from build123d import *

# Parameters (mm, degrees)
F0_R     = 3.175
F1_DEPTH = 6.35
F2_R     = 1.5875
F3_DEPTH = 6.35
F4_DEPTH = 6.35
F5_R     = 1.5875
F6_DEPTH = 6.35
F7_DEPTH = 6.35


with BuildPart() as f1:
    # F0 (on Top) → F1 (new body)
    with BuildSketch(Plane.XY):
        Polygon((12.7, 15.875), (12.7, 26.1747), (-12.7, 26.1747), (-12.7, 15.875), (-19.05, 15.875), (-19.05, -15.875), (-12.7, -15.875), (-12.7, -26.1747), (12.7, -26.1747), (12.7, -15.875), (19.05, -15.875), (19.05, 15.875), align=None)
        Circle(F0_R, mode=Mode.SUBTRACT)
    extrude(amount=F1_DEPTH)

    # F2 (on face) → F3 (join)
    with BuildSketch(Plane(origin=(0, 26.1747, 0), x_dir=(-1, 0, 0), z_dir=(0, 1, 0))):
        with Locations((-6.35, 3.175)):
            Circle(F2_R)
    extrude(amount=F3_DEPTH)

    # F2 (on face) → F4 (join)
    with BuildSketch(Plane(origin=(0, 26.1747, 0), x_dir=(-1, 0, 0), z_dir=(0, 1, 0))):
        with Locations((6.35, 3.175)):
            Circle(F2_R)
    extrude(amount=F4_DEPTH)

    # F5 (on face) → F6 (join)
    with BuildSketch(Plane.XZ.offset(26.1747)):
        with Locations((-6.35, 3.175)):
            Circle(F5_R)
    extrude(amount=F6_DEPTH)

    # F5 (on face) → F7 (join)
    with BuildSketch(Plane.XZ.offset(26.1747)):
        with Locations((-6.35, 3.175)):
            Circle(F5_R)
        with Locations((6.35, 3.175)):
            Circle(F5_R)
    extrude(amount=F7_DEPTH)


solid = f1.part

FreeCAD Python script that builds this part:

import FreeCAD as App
import Part
import Sketcher

V = App.Vector
Q = App.Units.Quantity

doc = App.newDocument("Part")
body = doc.addObject("PartDesign::Body", "Body")

# Sketch on XY plane
sketch1 = doc.addObject("Sketcher::SketchObject", "Sketch")
body.addObject(sketch1)
sketch1.AttachmentSupport = (doc.XY_Plane, [""])
sketch1.MapMode = "FlatFace"
sketch1.addGeometry([
    Part.LineSegment(V(12.7, 15.9, 0), V(12.7, 26.2, 0)),  # 0
    Part.LineSegment(V(12.7, 26.2, 0), V(-12.7, 26.2, 0)),  # 1
    Part.LineSegment(V(-12.7, 26.2, 0), V(-12.7, 15.9, 0)),  # 2
    Part.LineSegment(V(-12.7, 15.9, 0), V(-19.1, 15.9, 0)),  # 3
    Part.LineSegment(V(-19.1, 15.9, 0), V(-19.1, -15.9, 0)),  # 4
    Part.LineSegment(V(-19.1, -15.9, 0), V(-12.7, -15.9, 0)),  # 5
    Part.LineSegment(V(-12.7, -15.9, 0), V(-12.7, -26.2, 0)),  # 6
    Part.LineSegment(V(-12.7, -26.2, 0), V(12.7, -26.2, 0)),  # 7
    Part.LineSegment(V(12.7, -26.2, 0), V(12.7, -15.9, 0)),  # 8
    Part.LineSegment(V(12.7, -15.9, 0), V(19.1, -15.9, 0)),  # 9
    Part.LineSegment(V(19.1, -15.9, 0), V(19.1, 15.9, 0)),  # 10
    Part.LineSegment(V(19.1, 15.9, 0), V(12.7, 15.9, 0)),  # 11
    Part.Circle(V(0, 0, 0), V(0, 0, 1), 3.2),  # 12
], False)
sketch1.addConstraint([
    Sketcher.Constraint("Coincident", 0, 2, 1, 1),
    Sketcher.Constraint("Coincident", 1, 2, 2, 1),
    Sketcher.Constraint("Coincident", 2, 2, 3, 1),
    Sketcher.Constraint("Coincident", 3, 2, 4, 1),
    Sketcher.Constraint("Coincident", 4, 2, 5, 1),
    Sketcher.Constraint("Coincident", 5, 2, 6, 1),
    Sketcher.Constraint("Coincident", 6, 2, 7, 1),
    Sketcher.Constraint("Coincident", 7, 2, 8, 1),
    Sketcher.Constraint("Coincident", 8, 2, 9, 1),
    Sketcher.Constraint("Coincident", 9, 2, 10, 1),
    Sketcher.Constraint("Coincident", 10, 2, 11, 1),
    Sketcher.Constraint("Coincident", 11, 2, 0, 1),
    Sketcher.Constraint("Vertical", 0),
    Sketcher.Constraint("Horizontal", 1),
    Sketcher.Constraint("Vertical", 2),
    Sketcher.Constraint("Horizontal", 3),
    Sketcher.Constraint("Vertical", 4),
    Sketcher.Constraint("Horizontal", 5),
    Sketcher.Constraint("Vertical", 6),
    Sketcher.Constraint("Horizontal", 7),
    Sketcher.Constraint("Vertical", 8),
    Sketcher.Constraint("Horizontal", 9),
    Sketcher.Constraint("Vertical", 10),
    Sketcher.Constraint("Horizontal", 11),
    Sketcher.Constraint("Coincident", 12, 3, -1, 1),
    Sketcher.Constraint("Symmetric", 0, 2, 6, 2, -1, 1),
    Sketcher.Constraint("Symmetric", 2, 2, 8, 2, -1, 1),
    Sketcher.Constraint("Symmetric", 4, 2, 10, 2, -1, 1),
    Sketcher.Constraint("Symmetric", 5, 2, 8, 2, -2),
    Sketcher.Constraint("Diameter", 12, Q("0.25 in")),
    Sketcher.Constraint("DistanceX", 1, 2, 1, 1, Q("1 in")),
    Sketcher.Constraint("DistanceX", 3, 2, 3, 1, Q("0.25 in")),
    Sketcher.Constraint("DistanceY", 4, 2, 4, 1, Q("1.25 in")),
    Sketcher.Constraint("DistanceY", 0, 1, 0, 2, Q("0.4055 in")),
])
pad1 = doc.addObject("PartDesign::Pad", "Pad")
body.addObject(pad1)
pad1.Profile = sketch1
pad1.Length = Q("0.25 in")

# Sketch on XZ plane
sketch2 = doc.addObject("Sketcher::SketchObject", "Sketch001")
body.addObject(sketch2)
sketch2.AttachmentSupport = (doc.XZ_Plane, [""])
sketch2.MapMode = "FlatFace"
sketch2.AttachmentOffset = App.Placement(V(0, 0, -1.0305 * 25.4), App.Rotation())
sketch2.addGeometry(Part.Circle(V(6.3, 3.2, 0), V(0, 0, 1), 1.6), False)
sketch2.addConstraint([
    Sketcher.Constraint("Diameter", 0, Q("0.125 in")),
    Sketcher.Constraint("DistanceX", -1, 1, 0, 3, Q("0.25 in")),
    Sketcher.Constraint("DistanceY", -1, 1, 0, 3, Q("0.125 in")),
])
pad2 = doc.addObject("PartDesign::Pad", "Pad001")
body.addObject(pad2)
pad2.Profile = sketch2
pad2.Length = Q("0.25 in")
pad2.Reversed = True

# Sketch on XZ plane
sketch3 = doc.addObject("Sketcher::SketchObject", "Sketch002")
body.addObject(sketch3)
sketch3.AttachmentSupport = (doc.XZ_Plane, [""])
sketch3.MapMode = "FlatFace"
sketch3.AttachmentOffset = App.Placement(V(0, 0, -1.0305 * 25.4), App.Rotation())
sketch3.addGeometry(Part.Circle(V(-6.3, 3.2, 0), V(0, 0, 1), 1.6), False)
sketch3.addConstraint([
    Sketcher.Constraint("Diameter", 0, Q("0.125 in")),
    Sketcher.Constraint("DistanceX", 0, 3, -1, 1, Q("0.25 in")),
    Sketcher.Constraint("DistanceY", -1, 1, 0, 3, Q("0.125 in")),
])
pad3 = doc.addObject("PartDesign::Pad", "Pad002")
body.addObject(pad3)
pad3.Profile = sketch3
pad3.Length = Q("0.25 in")
pad3.Reversed = True

# Sketch on XZ plane
sketch4 = doc.addObject("Sketcher::SketchObject", "Sketch003")
body.addObject(sketch4)
sketch4.AttachmentSupport = (doc.XZ_Plane, [""])
sketch4.MapMode = "FlatFace"
sketch4.AttachmentOffset = App.Placement(V(0, 0, 1.0305 * 25.4), App.Rotation())
sketch4.addGeometry(Part.Circle(V(-6.3, 3.2, 0), V(0, 0, 1), 1.6), False)
sketch4.addConstraint([
    Sketcher.Constraint("Diameter", 0, Q("0.125 in")),
    Sketcher.Constraint("DistanceX", 0, 3, -1, 1, Q("0.25 in")),
    Sketcher.Constraint("DistanceY", -1, 1, 0, 3, Q("0.125 in")),
])
pad4 = doc.addObject("PartDesign::Pad", "Pad003")
body.addObject(pad4)
pad4.Profile = sketch4
pad4.Length = Q("0.25 in")

# Sketch on XZ plane
sketch5 = doc.addObject("Sketcher::SketchObject", "Sketch004")
body.addObject(sketch5)
sketch5.AttachmentSupport = (doc.XZ_Plane, [""])
sketch5.MapMode = "FlatFace"
sketch5.AttachmentOffset = App.Placement(V(0, 0, 1.0305 * 25.4), App.Rotation())
sketch5.addGeometry([
    Part.Circle(V(-6.3, 3.2, 0), V(0, 0, 1), 1.6),
    Part.Circle(V(6.3, 3.2, 0), V(0, 0, 1), 1.6),
], False)
sketch5.addConstraint([
    Sketcher.Constraint("Equal", 0, 1),
    Sketcher.Constraint("Symmetric", 0, 3, 1, 3, -2),
    Sketcher.Constraint("Diameter", 0, Q("0.125 in")),
    Sketcher.Constraint("DistanceX", 0, 3, 1, 3, Q("0.5 in")),
    Sketcher.Constraint("DistanceY", -1, 1, 0, 3, Q("0.125 in")),
])
pad5 = doc.addObject("PartDesign::Pad", "Pad004")
body.addObject(pad5)
pad5.Profile = sketch5
pad5.Length = Q("0.25 in")

doc.recompute()
